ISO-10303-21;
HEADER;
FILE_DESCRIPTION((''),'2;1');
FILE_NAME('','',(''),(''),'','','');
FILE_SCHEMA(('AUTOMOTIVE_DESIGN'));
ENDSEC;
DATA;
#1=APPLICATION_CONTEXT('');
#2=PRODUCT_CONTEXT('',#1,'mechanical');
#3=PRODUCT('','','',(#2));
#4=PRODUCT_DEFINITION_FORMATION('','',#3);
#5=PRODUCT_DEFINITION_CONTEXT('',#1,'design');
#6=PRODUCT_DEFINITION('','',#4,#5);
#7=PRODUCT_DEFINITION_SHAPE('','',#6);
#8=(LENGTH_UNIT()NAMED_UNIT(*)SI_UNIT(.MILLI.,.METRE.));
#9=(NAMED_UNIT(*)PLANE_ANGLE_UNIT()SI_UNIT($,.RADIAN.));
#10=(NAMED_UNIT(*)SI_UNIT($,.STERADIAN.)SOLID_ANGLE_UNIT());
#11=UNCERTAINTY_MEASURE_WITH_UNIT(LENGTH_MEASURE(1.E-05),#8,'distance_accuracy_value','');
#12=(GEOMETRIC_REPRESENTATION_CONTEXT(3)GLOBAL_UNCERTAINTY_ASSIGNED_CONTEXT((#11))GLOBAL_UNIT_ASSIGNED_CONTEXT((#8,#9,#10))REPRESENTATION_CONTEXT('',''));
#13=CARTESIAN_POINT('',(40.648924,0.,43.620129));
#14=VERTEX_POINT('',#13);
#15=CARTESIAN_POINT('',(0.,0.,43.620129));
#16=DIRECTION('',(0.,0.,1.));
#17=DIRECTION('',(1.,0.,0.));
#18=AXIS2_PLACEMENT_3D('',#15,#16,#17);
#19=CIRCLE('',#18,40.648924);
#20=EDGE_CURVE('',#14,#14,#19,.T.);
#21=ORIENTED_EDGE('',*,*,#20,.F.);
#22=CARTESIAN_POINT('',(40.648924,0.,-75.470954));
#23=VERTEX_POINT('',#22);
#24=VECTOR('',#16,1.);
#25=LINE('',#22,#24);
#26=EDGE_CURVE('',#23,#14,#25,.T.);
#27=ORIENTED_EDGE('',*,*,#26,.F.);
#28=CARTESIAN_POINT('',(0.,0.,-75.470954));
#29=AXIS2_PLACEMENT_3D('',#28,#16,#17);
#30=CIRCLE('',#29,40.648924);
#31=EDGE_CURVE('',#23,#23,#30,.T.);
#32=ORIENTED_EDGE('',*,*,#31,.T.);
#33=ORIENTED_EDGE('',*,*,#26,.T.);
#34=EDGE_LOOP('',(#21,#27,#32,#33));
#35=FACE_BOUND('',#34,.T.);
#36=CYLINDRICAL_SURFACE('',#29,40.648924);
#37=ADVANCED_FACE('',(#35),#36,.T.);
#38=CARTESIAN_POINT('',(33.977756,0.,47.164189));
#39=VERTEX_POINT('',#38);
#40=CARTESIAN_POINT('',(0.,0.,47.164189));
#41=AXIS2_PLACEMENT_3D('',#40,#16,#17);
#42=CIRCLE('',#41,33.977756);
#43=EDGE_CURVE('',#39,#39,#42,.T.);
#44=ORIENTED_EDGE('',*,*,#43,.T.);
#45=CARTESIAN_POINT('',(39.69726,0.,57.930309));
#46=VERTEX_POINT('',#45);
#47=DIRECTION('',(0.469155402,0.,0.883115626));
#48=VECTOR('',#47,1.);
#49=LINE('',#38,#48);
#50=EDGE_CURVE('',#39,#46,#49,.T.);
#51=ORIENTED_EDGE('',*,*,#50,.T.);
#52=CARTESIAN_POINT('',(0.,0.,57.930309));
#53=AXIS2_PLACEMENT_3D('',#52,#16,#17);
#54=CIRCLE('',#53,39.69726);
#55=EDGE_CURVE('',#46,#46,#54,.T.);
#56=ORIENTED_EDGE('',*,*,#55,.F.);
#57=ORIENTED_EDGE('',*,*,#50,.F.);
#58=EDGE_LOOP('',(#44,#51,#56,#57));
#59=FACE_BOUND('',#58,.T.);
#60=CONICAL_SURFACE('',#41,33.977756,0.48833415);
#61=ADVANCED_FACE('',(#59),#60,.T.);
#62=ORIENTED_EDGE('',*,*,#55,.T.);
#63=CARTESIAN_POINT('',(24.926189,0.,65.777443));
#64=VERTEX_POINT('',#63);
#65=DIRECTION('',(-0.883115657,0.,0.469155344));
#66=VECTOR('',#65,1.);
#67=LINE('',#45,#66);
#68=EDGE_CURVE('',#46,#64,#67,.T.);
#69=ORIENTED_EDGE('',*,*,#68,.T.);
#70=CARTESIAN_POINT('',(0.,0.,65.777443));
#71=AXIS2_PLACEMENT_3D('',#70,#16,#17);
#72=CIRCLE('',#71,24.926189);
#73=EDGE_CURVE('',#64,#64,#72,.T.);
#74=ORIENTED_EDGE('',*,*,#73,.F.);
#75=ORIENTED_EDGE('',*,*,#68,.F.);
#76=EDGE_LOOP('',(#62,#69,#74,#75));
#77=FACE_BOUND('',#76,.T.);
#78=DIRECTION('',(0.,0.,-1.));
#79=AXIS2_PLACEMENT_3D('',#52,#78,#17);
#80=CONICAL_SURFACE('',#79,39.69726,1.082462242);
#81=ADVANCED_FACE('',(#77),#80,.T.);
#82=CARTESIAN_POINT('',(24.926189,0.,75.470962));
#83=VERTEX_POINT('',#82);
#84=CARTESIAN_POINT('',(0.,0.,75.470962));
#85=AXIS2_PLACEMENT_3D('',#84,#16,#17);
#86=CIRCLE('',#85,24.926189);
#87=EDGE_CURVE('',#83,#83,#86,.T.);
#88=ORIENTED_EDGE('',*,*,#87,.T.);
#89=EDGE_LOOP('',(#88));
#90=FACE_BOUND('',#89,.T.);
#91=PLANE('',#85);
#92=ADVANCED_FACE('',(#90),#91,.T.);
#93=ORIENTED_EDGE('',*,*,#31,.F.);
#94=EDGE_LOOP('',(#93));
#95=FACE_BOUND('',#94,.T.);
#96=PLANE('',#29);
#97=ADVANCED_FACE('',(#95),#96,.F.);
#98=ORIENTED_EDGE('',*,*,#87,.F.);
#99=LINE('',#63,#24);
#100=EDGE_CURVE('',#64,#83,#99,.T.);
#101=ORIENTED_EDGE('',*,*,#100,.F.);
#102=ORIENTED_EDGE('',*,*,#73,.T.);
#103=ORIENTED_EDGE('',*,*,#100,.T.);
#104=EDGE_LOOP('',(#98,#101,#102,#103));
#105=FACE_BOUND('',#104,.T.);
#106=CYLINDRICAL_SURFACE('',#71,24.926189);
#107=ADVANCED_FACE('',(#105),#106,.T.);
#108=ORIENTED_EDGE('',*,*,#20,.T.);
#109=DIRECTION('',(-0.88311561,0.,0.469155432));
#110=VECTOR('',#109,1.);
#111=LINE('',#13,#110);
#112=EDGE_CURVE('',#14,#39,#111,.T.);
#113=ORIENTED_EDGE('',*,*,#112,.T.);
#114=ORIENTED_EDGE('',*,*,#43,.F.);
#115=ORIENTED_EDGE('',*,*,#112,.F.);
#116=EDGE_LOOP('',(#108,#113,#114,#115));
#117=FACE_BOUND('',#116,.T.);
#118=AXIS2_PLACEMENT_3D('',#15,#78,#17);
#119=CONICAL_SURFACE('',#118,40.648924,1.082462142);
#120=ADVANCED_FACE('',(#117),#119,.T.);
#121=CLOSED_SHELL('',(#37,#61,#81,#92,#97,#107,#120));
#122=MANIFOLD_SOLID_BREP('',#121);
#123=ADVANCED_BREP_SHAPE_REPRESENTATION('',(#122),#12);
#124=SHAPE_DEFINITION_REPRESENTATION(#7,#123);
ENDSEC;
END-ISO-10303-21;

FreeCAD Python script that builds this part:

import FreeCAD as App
import Part
import Sketcher

V = App.Vector


def add_polygon(sketch, points):
    """Adds a closed chain of lines whose ends are joined by coincident constraints."""
    first, n = sketch.GeometryCount, len(points)
    for a, b in zip(points, points[1:] + points[:1]):
        sketch.addGeometry(Part.LineSegment(App.Vector(*a, 0), App.Vector(*b, 0)), False)
    for i in range(n):
        sketch.addConstraint(Sketcher.Constraint("Coincident", first + i, 2, first + (i + 1) % n, 1))

doc = App.newDocument("Part")
body = doc.addObject("PartDesign::Body", "Body")

sketch1 = body.newObject("Sketcher::SketchObject", "Sketch")
sketch1.AttachmentSupport = (doc.getObject("XZ_Plane"), [""])
sketch1.MapMode = "FlatFace"
add_polygon(sketch1, [(25, 75), (0, 75), (0, -75), (41, -75), (41, 44), (34, 47), (40, 58), (25, 66)])
sketch1.addConstraint([
    Sketcher.Constraint("Horizontal", 0),
    Sketcher.Constraint("Vertical", 1),
    Sketcher.Constraint("Horizontal", 2),
    Sketcher.Constraint("Vertical", 3),
    Sketcher.Constraint("Vertical", 7),
    Sketcher.Constraint("Symmetric", 0, 2, 1, 2, -1, 1),
    Sketcher.Constraint("Perpendicular", 4, 5),
    Sketcher.Constraint("Perpendicular", 5, 6),
    Sketcher.Constraint("DistanceX", 0, 2, 0, 1, 24.926189),
    Sketcher.Constraint("DistanceY", 7, 1, 7, 2, 9.693519),
    Sketcher.Constraint("Distance", 6, 16.726089),
    Sketcher.Constraint("DistanceX", 2, 1, 2, 2, 40.648924),
    Sketcher.Constraint("DistanceY", 1, 2, 1, 1, 150.941916),
    Sketcher.Constraint("DistanceY", 3, 1, 3, 2, 119.091083),
    Sketcher.Constraint("DistanceY", -1, 1, 4, 2, 47.164189),
])
revolution = body.newObject("PartDesign::Revolution", "Revolution")
revolution.Profile = sketch1
revolution.ReferenceAxis = (sketch1, ["V_Axis"])
revolution.Angle = 360

doc.recompute()
